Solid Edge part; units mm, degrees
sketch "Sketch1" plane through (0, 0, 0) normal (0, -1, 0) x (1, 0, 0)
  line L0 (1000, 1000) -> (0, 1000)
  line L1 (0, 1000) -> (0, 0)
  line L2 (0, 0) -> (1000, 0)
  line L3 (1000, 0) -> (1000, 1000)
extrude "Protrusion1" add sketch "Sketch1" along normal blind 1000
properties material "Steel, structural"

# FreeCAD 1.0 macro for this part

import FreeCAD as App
import Part
import Sketcher

doc = App.newDocument("Part")
params = doc.addObject("Spreadsheet::Sheet", "Params")
for row, (alias, value) in enumerate([
    ("sketch1_width", "1000 mm"),
    ("pad1_length", "1000 mm"),
], start=1):
    params.set(f"A{row}", alias)
    params.set(f"B{row}", "=" + value)
    params.setAlias(f"B{row}", alias)

body = doc.addObject("PartDesign::Body", "Body")

# Sketch on XZ plane
sketch1 = body.newObject("Sketcher::SketchObject", "Sketch")
sketch1.AttachmentSupport = (doc.getObject("XZ_Plane"), [""])
sketch1.MapMode = "FlatFace"
sketch1.addGeometry([
    Part.LineSegment(App.Vector(1000, 0, 0), App.Vector(1000, 1000, 0)),
    Part.LineSegment(App.Vector(1000, 1000, 0), App.Vector(0, 1000, 0)),
    Part.LineSegment(App.Vector(0, 1000, 0), App.Vector(0, 0, 0)),
    Part.LineSegment(App.Vector(0, 0, 0), App.Vector(1000, 0, 0)),
], False)
sketch1.addConstraint([
    Sketcher.Constraint("Coincident", 0, 2, 1, 1),
    Sketcher.Constraint("Coincident", 1, 2, 2, 1),
    Sketcher.Constraint("Coincident", 2, 2, 3, 1),
    Sketcher.Constraint("Coincident", 3, 2, 0, 1),
    Sketcher.Constraint("Vertical", 0),
    Sketcher.Constraint("Horizontal", 1),
    Sketcher.Constraint("Vertical", 2),
    Sketcher.Constraint("Horizontal", 3),
    Sketcher.Constraint("Coincident", 2, 2, -1, 1),
    Sketcher.Constraint("Equal", 3, 0),
    Sketcher.Constraint("DistanceX", 1, 2, 1, 1, 1000.0),
])
sketch1.setExpression("Constraints[10]", "Params.sketch1_width")
pad1 = body.newObject("PartDesign::Pad", "Pad")
pad1.Profile = sketch1
pad1.setExpression("Length", "Params.pad1_length")

doc.recompute()
